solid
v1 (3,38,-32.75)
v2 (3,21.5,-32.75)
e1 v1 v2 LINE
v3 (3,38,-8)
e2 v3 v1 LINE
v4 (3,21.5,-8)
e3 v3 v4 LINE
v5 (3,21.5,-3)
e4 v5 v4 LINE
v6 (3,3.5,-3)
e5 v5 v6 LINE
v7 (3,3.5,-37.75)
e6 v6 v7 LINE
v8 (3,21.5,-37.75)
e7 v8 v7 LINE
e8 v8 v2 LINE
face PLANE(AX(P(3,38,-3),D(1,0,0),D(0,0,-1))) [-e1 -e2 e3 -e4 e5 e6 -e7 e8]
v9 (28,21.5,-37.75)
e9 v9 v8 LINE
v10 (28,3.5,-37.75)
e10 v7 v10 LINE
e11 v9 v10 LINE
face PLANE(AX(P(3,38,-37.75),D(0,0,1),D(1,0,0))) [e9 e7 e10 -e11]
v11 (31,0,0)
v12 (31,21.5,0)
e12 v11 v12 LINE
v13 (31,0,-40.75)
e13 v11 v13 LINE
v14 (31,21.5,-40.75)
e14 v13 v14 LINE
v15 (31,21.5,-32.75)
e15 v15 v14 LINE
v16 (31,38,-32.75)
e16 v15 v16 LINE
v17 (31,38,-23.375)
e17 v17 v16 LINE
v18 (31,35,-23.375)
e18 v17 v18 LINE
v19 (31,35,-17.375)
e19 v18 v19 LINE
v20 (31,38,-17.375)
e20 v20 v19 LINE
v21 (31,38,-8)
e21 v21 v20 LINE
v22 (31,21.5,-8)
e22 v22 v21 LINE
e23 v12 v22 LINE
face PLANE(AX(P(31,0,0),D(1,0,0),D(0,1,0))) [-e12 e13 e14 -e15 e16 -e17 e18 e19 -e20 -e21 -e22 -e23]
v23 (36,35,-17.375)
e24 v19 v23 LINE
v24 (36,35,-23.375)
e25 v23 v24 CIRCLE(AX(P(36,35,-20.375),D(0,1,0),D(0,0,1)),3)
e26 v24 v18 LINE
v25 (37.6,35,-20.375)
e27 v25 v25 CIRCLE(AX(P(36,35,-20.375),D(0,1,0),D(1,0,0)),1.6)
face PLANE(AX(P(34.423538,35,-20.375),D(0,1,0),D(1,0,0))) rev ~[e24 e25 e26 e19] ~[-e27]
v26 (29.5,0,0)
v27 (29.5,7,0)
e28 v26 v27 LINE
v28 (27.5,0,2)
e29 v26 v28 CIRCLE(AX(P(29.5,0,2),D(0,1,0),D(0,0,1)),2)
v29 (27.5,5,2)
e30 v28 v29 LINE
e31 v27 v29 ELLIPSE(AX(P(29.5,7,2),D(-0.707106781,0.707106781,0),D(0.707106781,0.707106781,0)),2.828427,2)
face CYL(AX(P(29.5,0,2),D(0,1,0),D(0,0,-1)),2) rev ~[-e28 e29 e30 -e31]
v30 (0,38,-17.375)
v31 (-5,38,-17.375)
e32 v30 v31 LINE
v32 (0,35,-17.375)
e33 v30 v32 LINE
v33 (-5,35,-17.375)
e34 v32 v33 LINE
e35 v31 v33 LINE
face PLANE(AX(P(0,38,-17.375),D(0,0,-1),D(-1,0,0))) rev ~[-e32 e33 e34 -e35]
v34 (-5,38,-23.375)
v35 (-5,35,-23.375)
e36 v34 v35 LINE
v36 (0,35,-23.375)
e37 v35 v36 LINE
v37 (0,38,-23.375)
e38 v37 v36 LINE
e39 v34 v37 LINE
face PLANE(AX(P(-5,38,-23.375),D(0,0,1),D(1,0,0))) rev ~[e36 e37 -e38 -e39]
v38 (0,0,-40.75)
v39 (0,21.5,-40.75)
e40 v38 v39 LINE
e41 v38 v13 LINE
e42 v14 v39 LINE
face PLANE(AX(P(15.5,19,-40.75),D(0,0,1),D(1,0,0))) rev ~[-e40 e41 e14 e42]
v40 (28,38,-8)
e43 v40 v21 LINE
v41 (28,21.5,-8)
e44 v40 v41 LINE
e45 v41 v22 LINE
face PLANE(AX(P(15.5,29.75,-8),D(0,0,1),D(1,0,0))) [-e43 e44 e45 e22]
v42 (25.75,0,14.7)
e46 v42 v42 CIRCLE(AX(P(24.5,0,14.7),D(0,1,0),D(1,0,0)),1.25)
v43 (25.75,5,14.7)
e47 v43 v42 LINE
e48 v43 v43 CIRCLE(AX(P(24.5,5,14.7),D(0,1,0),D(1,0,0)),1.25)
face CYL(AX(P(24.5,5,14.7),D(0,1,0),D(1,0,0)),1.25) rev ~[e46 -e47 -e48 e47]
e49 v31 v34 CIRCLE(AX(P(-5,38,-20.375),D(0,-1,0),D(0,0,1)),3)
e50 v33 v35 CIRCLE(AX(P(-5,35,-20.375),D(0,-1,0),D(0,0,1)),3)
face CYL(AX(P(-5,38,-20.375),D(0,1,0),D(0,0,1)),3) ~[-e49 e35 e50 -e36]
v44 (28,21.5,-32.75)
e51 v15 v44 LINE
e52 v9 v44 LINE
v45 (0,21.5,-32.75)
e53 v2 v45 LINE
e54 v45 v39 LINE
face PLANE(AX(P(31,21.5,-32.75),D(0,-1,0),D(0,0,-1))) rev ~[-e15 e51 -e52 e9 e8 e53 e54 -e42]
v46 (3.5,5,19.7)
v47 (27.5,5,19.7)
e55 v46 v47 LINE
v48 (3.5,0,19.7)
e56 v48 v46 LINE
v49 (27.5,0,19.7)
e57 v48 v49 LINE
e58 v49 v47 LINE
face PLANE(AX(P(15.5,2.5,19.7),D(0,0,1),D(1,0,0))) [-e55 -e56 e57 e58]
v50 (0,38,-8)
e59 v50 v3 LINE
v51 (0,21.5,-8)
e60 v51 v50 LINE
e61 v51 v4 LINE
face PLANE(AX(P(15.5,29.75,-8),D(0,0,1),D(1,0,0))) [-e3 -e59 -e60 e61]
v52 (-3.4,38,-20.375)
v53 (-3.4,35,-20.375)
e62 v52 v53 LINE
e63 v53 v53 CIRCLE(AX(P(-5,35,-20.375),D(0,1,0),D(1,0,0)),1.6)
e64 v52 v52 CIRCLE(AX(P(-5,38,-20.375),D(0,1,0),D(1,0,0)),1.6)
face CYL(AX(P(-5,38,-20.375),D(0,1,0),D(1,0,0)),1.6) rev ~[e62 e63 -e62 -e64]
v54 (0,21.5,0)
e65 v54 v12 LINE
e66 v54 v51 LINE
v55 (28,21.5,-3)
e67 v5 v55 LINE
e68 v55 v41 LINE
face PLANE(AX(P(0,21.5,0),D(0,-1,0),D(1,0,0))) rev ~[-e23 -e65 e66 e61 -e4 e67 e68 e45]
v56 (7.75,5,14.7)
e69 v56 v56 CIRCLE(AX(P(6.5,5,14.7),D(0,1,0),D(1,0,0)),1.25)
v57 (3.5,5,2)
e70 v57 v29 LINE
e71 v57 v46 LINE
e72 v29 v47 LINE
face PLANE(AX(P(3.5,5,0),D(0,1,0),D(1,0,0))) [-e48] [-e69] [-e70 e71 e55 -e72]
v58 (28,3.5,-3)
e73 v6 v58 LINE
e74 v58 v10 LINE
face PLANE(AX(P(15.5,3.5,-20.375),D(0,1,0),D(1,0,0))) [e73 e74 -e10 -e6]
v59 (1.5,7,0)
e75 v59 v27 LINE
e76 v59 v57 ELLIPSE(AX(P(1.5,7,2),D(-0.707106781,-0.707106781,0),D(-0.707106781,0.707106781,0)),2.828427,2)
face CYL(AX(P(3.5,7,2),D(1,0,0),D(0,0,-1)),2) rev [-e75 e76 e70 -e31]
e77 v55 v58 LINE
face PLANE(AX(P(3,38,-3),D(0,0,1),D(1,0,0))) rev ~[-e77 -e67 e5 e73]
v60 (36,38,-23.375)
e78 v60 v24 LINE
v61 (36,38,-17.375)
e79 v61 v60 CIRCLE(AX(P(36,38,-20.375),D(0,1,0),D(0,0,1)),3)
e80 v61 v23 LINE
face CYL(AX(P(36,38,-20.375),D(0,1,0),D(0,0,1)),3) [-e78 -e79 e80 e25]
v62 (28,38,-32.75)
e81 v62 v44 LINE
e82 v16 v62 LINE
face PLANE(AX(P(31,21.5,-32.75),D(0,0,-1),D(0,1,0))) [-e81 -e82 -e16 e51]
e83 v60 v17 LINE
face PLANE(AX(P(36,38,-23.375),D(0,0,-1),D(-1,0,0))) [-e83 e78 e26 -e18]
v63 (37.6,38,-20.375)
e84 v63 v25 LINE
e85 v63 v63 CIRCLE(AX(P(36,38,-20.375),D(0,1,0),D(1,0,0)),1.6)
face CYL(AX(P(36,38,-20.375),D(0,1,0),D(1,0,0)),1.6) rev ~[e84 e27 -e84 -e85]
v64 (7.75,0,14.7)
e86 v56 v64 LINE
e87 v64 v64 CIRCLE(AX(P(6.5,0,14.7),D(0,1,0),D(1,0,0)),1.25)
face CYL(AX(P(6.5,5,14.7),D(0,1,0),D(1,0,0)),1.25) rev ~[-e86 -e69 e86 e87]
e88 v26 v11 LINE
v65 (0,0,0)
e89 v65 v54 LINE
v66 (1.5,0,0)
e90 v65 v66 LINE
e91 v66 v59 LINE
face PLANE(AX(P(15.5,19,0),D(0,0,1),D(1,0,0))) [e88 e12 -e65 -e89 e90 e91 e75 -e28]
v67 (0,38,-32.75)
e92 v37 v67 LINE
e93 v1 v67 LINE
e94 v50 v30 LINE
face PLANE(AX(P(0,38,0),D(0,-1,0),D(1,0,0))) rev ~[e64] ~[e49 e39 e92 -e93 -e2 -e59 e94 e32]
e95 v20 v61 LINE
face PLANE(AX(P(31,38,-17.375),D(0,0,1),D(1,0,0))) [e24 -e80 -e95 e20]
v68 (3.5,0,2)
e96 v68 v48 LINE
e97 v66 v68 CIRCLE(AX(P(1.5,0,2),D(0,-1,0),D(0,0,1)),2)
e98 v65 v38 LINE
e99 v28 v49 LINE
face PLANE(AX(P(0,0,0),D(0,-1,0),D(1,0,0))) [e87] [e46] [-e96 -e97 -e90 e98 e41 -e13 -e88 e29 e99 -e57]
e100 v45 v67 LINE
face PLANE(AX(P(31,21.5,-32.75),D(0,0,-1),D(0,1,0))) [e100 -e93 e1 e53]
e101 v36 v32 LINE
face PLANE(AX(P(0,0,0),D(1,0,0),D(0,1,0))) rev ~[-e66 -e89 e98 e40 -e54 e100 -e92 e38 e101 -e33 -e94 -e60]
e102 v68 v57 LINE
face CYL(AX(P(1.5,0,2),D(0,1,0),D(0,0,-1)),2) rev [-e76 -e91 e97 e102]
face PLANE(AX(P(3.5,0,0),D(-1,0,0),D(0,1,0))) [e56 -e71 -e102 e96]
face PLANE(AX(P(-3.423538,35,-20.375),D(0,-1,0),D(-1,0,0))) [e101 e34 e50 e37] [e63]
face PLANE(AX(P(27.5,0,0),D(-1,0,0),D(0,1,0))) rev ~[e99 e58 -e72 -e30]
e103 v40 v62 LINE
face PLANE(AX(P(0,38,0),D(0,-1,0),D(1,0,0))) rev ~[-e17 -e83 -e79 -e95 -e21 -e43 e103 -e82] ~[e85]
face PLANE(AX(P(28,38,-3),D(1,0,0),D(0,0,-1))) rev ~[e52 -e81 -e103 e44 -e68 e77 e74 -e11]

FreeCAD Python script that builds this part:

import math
import FreeCAD as App
import Part
import Sketcher
from FreeCAD import Vector
Q = App.Units.Quantity


def edges_at(feature, points):
    """Names of the edges that pass closest to the given points."""
    edges = feature.Shape.Edges
    near = lambda p: min(range(len(edges)), key=lambda i: edges[i].distToShape(Part.Vertex(*p))[0])
    return sorted({f"Edge{near(p) + 1}" for p in points})

doc = App.newDocument("Part")
body = doc.addObject("PartDesign::Body", "Body")

sketch1 = doc.addObject("Sketcher::SketchObject", "Sketch")
body.addObject(sketch1)
sketch1.AttachmentSupport = (doc.XY_Plane, [""])
sketch1.MapMode = "FlatFace"
sketch1.addGeometry(Part.LineSegment(Vector(0, 38, 0), Vector(0, 0, 0)), False)
sketch1.addGeometry(Part.LineSegment(Vector(0, 0, 0), Vector(31, 0, 0)), False)
sketch1.addGeometry(Part.LineSegment(Vector(31, 0, 0), Vector(31, 38, 0)), False)
sketch1.addGeometry(Part.LineSegment(Vector(31, 38, 0), Vector(0, 38, 0)), False)
sketch1.addConstraint(Sketcher.Constraint("Coincident", 0, 2, 1, 1))
sketch1.addConstraint(Sketcher.Constraint("Coincident", 1, 2, 2, 1))
sketch1.addConstraint(Sketcher.Constraint("Coincident", 2, 2, 3, 1))
sketch1.addConstraint(Sketcher.Constraint("Coincident", 3, 2, 0, 1))
sketch1.addConstraint(Sketcher.Constraint("Vertical", 0))
sketch1.addConstraint(Sketcher.Constraint("Horizontal", 1))
sketch1.addConstraint(Sketcher.Constraint("Vertical", 2))
sketch1.addConstraint(Sketcher.Constraint("Horizontal", 3))
sketch1.addConstraint(Sketcher.Constraint("Coincident", 0, 2, -1, 1))
sketch1.addConstraint(Sketcher.Constraint("DistanceX", 1, 1, 1, 2, Q("31 mm")))
sketch1.addConstraint(Sketcher.Constraint("DistanceY", 0, 2, 0, 1, Q("38 mm")))
pad1 = doc.addObject("PartDesign::Pad", "Pad")
body.addObject(pad1)
pad1.Profile = sketch1
pad1.Length = 40.75
pad1.Reversed = True

sketch2 = doc.addObject("Sketcher::SketchObject", "Sketch001")
body.addObject(sketch2)
sketch2.AttachmentSupport = (doc.YZ_Plane, [""])
sketch2.MapMode = "FlatFace"
sketch2.AttachmentOffset = App.Placement(Vector(0, 0, 31), App.Rotation())
sketch2.addGeometry(Part.LineSegment(Vector(38, -33, 0), Vector(22, -33, 0)), False)
sketch2.addGeometry(Part.LineSegment(Vector(22, -33, 0), Vector(22, -41, 0)), False)
sketch2.addGeometry(Part.LineSegment(Vector(22, -41, 0), Vector(38, -41, 0)), False)
sketch2.addGeometry(Part.LineSegment(Vector(38, -41, 0), Vector(38, -33, 0)), False)
sketch2.addConstraint(Sketcher.Constraint("Coincident", 0, 2, 1, 1))
sketch2.addConstraint(Sketcher.Constraint("Coincident", 1, 2, 2, 1))
sketch2.addConstraint(Sketcher.Constraint("Coincident", 2, 2, 3, 1))
sketch2.addConstraint(Sketcher.Constraint("Coincident", 3, 2, 0, 1))
sketch2.addConstraint(Sketcher.Constraint("Horizontal", 0))
sketch2.addConstraint(Sketcher.Constraint("Vertical", 1))
sketch2.addConstraint(Sketcher.Constraint("Horizontal", 2))
sketch2.addConstraint(Sketcher.Constraint("Vertical", 3))
sketch2.addConstraint(Sketcher.Constraint("DistanceY", 1, 2, 1, 1, Q("8 mm")))
sketch2.addConstraint(Sketcher.Constraint("DistanceX", 0, 2, 0, 1, Q("16.5 mm")))
sketch2.addConstraint(Sketcher.Constraint("DistanceX", -1, 1, 2, 2, Q("38 mm")))
sketch2.addConstraint(Sketcher.Constraint("DistanceY", 0, 2, -1, 1, Q("32.75 mm")))
pocket1 = doc.addObject("PartDesign::Pocket", "Pocket")
body.addObject(pocket1)
pocket1.Profile = sketch2
pocket1.Length = 40.75

sketch3 = doc.addObject("Sketcher::SketchObject", "Sketch002")
body.addObject(sketch3)
sketch3.AttachmentSupport = (doc.XZ_Plane, [""])
sketch3.MapMode = "FlatFace"
sketch3.AttachmentOffset = App.Placement(Vector(0, 0, -38), App.Rotation())
sketch3.addGeometry(Part.LineSegment(Vector(3, -38, 0), Vector(3, -3, 0)), False)
sketch3.addGeometry(Part.LineSegment(Vector(3, -3, 0), Vector(28, -3, 0)), False)
sketch3.addGeometry(Part.LineSegment(Vector(28, -3, 0), Vector(28, -38, 0)), False)
sketch3.addGeometry(Part.LineSegment(Vector(28, -38, 0), Vector(3, -38, 0)), False)
sketch3.addConstraint(Sketcher.Constraint("Coincident", 0, 2, 1, 1))
sketch3.addConstraint(Sketcher.Constraint("Coincident", 1, 2, 2, 1))
sketch3.addConstraint(Sketcher.Constraint("Coincident", 2, 2, 3, 1))
sketch3.addConstraint(Sketcher.Constraint("Coincident", 3, 2, 0, 1))
sketch3.addConstraint(Sketcher.Constraint("Vertical", 0))
sketch3.addConstraint(Sketcher.Constraint("Horizontal", 1))
sketch3.addConstraint(Sketcher.Constraint("Vertical", 2))
sketch3.addConstraint(Sketcher.Constraint("Horizontal", 3))
sketch3.addConstraint(Sketcher.Constraint("DistanceX", 1, 1, 1, 2, Q("25 mm")))
sketch3.addConstraint(Sketcher.Constraint("DistanceX", -1, 1, 0, 2, Q("3 mm")))
sketch3.addConstraint(Sketcher.Constraint("DistanceY", 0, 2, -1, 1, Q("3 mm")))
sketch3.addConstraint(Sketcher.Constraint("DistanceY", 0, 1, 0, 2, Q("34.75 mm")))
pocket2 = doc.addObject("PartDesign::Pocket", "Pocket001")
body.addObject(pocket2)
pocket2.Profile = sketch3
pocket2.Length = 34.5
pocket2.Reversed = True

sketch4 = doc.addObject("Sketcher::SketchObject", "Sketch003")
body.addObject(sketch4)
sketch4.AttachmentSupport = (doc.XY_Plane, [""])
sketch4.MapMode = "FlatFace"
sketch4.addGeometry(Part.Circle(Vector(16, 38, 0), Vector(0, 0, 1), 12), False)
sketch4.addConstraint(Sketcher.Constraint("Diameter", 0, Q("25 mm")))
sketch4.addConstraint(Sketcher.Constraint("DistanceY", -1, 1, 0, 3, Q("38 mm")))
sketch4.addConstraint(Sketcher.Constraint("DistanceX", -1, 1, 0, 3, Q("15.5 mm")))
pocket3 = doc.addObject("PartDesign::Pocket", "Pocket002")
body.addObject(pocket3)
pocket3.Profile = sketch4
pocket3.Length = 34.5

sketch5 = doc.addObject("Sketcher::SketchObject", "Sketch004")
body.addObject(sketch5)
sketch5.AttachmentSupport = (doc.XZ_Plane, [""])
sketch5.MapMode = "FlatFace"
sketch5.AttachmentOffset = App.Placement(Vector(0, 0, -38), App.Rotation())
sketch5.addGeometry(Part.LineSegment(Vector(36, -23.4, 0), Vector(31, -23.4, 0)), False)
sketch5.addGeometry(Part.LineSegment(Vector(31, -23.4, 0), Vector(31, -17.4, 0)), False)
sketch5.addGeometry(Part.LineSegment(Vector(31, -17.4, 0), Vector(36, -17.4, 0)), False)
sketch5.addGeometry(Part.ArcOfCircle(Part.Circle(Vector(36, -20.4, 0), Vector(0, 0, 1), 3), math.radians(-90), math.radians(90)), False)
sketch5.addGeometry(Part.Circle(Vector(36, -20.4, 0), Vector(0, 0, 1), 1.6), False)
sketch5.addGeometry(Part.LineSegment(Vector(0, -17.4, 0), Vector(0, -23.4, 0)), False)
sketch5.addGeometry(Part.LineSegment(Vector(0, -23.4, 0), Vector(-5, -23.4, 0)), False)
sketch5.addGeometry(Part.ArcOfCircle(Part.Circle(Vector(-5, -20.4, 0), Vector(0, 0, 1), 3), math.radians(90), math.radians(270)), False)
sketch5.addGeometry(Part.LineSegment(Vector(-5, -17.4, 0), Vector(0, -17.4, 0)), False)
sketch5.addGeometry(Part.Circle(Vector(-5, -20.4, 0), Vector(0, 0, 1), 1.6), False)
sketch5.addConstraint(Sketcher.Constraint("Coincident", 0, 2, 1, 1))
sketch5.addConstraint(Sketcher.Constraint("Coincident", 1, 2, 2, 1))
sketch5.addConstraint(Sketcher.Constraint("Tangent", 2, 2, 3, 2))
sketch5.addConstraint(Sketcher.Constraint("Tangent", 3, 1, 0, 1))
sketch5.addConstraint(Sketcher.Constraint("Coincident", 5, 2, 6, 1))
sketch5.addConstraint(Sketcher.Constraint("Tangent", 6, 2, 7, 2))
sketch5.addConstraint(Sketcher.Constraint("Tangent", 7, 1, 8, 1))
sketch5.addConstraint(Sketcher.Constraint("Coincident", 8, 2, 5, 1))
sketch5.addConstraint(Sketcher.Constraint("Horizontal", 0))
sketch5.addConstraint(Sketcher.Constraint("Vertical", 1))
sketch5.addConstraint(Sketcher.Constraint("Horizontal", 2))
sketch5.addConstraint(Sketcher.Constraint("Vertical", 5))
sketch5.addConstraint(Sketcher.Constraint("Horizontal", 6))
sketch5.addConstraint(Sketcher.Constraint("Horizontal", 8))
sketch5.addConstraint(Sketcher.Constraint("Coincident", 4, 3, 3, 3))
sketch5.addConstraint(Sketcher.Constraint("Coincident", 9, 3, 7, 3))
sketch5.addConstraint(Sketcher.Constraint("Equal", 3, 7))
sketch5.addConstraint(Sketcher.Constraint("Equal", 4, 9))
sketch5.addConstraint(Sketcher.Constraint("PointOnObject", 5, 2, -2))
sketch5.addConstraint(Sketcher.Constraint("Horizontal", 4, 3, 7, 3))
sketch5.addConstraint(Sketcher.Constraint("Equal", 2, 6))
sketch5.addConstraint(Sketcher.Constraint("Radius", 3, Q("3 mm")))
sketch5.addConstraint(Sketcher.Constraint("Diameter", 4, Q("3.2 mm")))
sketch5.addConstraint(Sketcher.Constraint("DistanceX", 0, 2, 0, 1, Q("5 mm")))
sketch5.addConstraint(Sketcher.Constraint("DistanceX", -1, 1, 3, 3, Q("36 mm")))
sketch5.addConstraint(Sketcher.Constraint("DistanceY", 3, 3, -1, 1, Q("20.375 mm")))
pad2 = doc.addObject("PartDesign::Pad", "Pad001")
body.addObject(pad2)
pad2.Profile = sketch5
pad2.Length = 3

sketch6 = doc.addObject("Sketcher::SketchObject", "Sketch005")
body.addObject(sketch6)
sketch6.AttachmentSupport = (doc.XY_Plane, [""])
sketch6.MapMode = "FlatFace"
sketch6.addGeometry(Part.LineSegment(Vector(0, 38, 0), Vector(0, 22, 0)), False)
sketch6.addGeometry(Part.LineSegment(Vector(0, 22, 0), Vector(31, 22, 0)), False)
sketch6.addGeometry(Part.LineSegment(Vector(31, 22, 0), Vector(31, 38, 0)), False)
sketch6.addGeometry(Part.LineSegment(Vector(31, 38, 0), Vector(0, 38, 0)), False)
sketch6.addConstraint(Sketcher.Constraint("Coincident", 0, 2, 1, 1))
sketch6.addConstraint(Sketcher.Constraint("Coincident", 1, 2, 2, 1))
sketch6.addConstraint(Sketcher.Constraint("Coincident", 2, 2, 3, 1))
sketch6.addConstraint(Sketcher.Constraint("Coincident", 3, 2, 0, 1))
sketch6.addConstraint(Sketcher.Constraint("Vertical", 0))
sketch6.addConstraint(Sketcher.Constraint("Horizontal", 1))
sketch6.addConstraint(Sketcher.Constraint("Vertical", 2))
sketch6.addConstraint(Sketcher.Constraint("Horizontal", 3))
sketch6.addConstraint(Sketcher.Constraint("PointOnObject", 0, 2, -2))
sketch6.addConstraint(Sketcher.Constraint("DistanceX", 1, 1, 1, 2, Q("31 mm")))
sketch6.addConstraint(Sketcher.Constraint("DistanceY", 0, 2, 0, 1, Q("16.5 mm")))
sketch6.addConstraint(Sketcher.Constraint("DistanceY", -1, 1, 2, 2, Q("38 mm")))
pocket4 = doc.addObject("PartDesign::Pocket", "Pocket003")
body.addObject(pocket4)
pocket4.Profile = sketch6
pocket4.Length = 8

sketch7 = doc.addObject("Sketcher::SketchObject", "Sketch006")
body.addObject(sketch7)
sketch7.AttachmentSupport = (doc.XY_Plane, [""])
sketch7.MapMode = "FlatFace"
sketch7.addGeometry(Part.LineSegment(Vector(4, 5, 0), Vector(4, 0, 0)), False)
sketch7.addGeometry(Part.LineSegment(Vector(4, 0, 0), Vector(28, 0, 0)), False)
sketch7.addGeometry(Part.LineSegment(Vector(28, 0, 0), Vector(28, 5, 0)), False)
sketch7.addGeometry(Part.LineSegment(Vector(28, 5, 0), Vector(4, 5, 0)), False)
sketch7.addConstraint(Sketcher.Constraint("Coincident", 0, 2, 1, 1))
sketch7.addConstraint(Sketcher.Constraint("Coincident", 1, 2, 2, 1))
sketch7.addConstraint(Sketcher.Constraint("Coincident", 2, 2, 3, 1))
sketch7.addConstraint(Sketcher.Constraint("Coincident", 3, 2, 0, 1))
sketch7.addConstraint(Sketcher.Constraint("Vertical", 0))
sketch7.addConstraint(Sketcher.Constraint("Horizontal", 1))
sketch7.addConstraint(Sketcher.Constraint("Vertical", 2))
sketch7.addConstraint(Sketcher.Constraint("Horizontal", 3))
sketch7.addConstraint(Sketcher.Constraint("PointOnObject", 0, 2, -1))
sketch7.addConstraint(Sketcher.Constraint("DistanceX", 1, 1, 1, 2, Q("24 mm")))
sketch7.addConstraint(Sketcher.Constraint("DistanceY", 0, 2, 0, 1, Q("5 mm")))
sketch7.addConstraint(Sketcher.Constraint("DistanceX", -1, 1, 0, 2, Q("3.5 mm")))
pad3 = doc.addObject("PartDesign::Pad", "Pad002")
body.addObject(pad3)
pad3.Profile = sketch7
pad3.Length = 19.7

sketch8 = doc.addObject("Sketcher::SketchObject", "Sketch007")
body.addObject(sketch8)
sketch8.AttachmentSupport = (doc.XZ_Plane, [""])
sketch8.MapMode = "FlatFace"
sketch8.AttachmentOffset = App.Placement(Vector(0, 0, -5), App.Rotation())
sketch8.addGeometry(Part.Circle(Vector(6.5, 14.7, 0), Vector(0, 0, 1), 1.2), False)
sketch8.addGeometry(Part.Circle(Vector(24.5, 14.7, 0), Vector(0, 0, 1), 1.2), False)
sketch8.addConstraint(Sketcher.Constraint("Equal", 0, 1))
sketch8.addConstraint(Sketcher.Constraint("Horizontal", 0, 3, 1, 3))
sketch8.addConstraint(Sketcher.Constraint("Diameter", 0, Q("2.5 mm")))
sketch8.addConstraint(Sketcher.Constraint("DistanceX", 0, 3, 1, 3, Q("18 mm")))
sketch8.addConstraint(Sketcher.Constraint("DistanceX", -1, 1, 0, 3, Q("6.5 mm")))
sketch8.addConstraint(Sketcher.Constraint("DistanceY", -1, 1, 0, 3, Q("14.7 mm")))
pocket5 = doc.addObject("PartDesign::Pocket", "Pocket004")
body.addObject(pocket5)
pocket5.Profile = sketch8
pocket5.Length = 20.7
pocket5.Reversed = True
doc.recompute()

fillet = doc.addObject("PartDesign::Fillet", "Fillet")
body.addObject(fillet)
fillet.Base = (pocket5, edges_at(pocket5, [(3.5, 2.5, 0), (27.5, 2.5, 0), (15.5, 5, 0)]))
fillet.Radius = 2

doc.recompute()
